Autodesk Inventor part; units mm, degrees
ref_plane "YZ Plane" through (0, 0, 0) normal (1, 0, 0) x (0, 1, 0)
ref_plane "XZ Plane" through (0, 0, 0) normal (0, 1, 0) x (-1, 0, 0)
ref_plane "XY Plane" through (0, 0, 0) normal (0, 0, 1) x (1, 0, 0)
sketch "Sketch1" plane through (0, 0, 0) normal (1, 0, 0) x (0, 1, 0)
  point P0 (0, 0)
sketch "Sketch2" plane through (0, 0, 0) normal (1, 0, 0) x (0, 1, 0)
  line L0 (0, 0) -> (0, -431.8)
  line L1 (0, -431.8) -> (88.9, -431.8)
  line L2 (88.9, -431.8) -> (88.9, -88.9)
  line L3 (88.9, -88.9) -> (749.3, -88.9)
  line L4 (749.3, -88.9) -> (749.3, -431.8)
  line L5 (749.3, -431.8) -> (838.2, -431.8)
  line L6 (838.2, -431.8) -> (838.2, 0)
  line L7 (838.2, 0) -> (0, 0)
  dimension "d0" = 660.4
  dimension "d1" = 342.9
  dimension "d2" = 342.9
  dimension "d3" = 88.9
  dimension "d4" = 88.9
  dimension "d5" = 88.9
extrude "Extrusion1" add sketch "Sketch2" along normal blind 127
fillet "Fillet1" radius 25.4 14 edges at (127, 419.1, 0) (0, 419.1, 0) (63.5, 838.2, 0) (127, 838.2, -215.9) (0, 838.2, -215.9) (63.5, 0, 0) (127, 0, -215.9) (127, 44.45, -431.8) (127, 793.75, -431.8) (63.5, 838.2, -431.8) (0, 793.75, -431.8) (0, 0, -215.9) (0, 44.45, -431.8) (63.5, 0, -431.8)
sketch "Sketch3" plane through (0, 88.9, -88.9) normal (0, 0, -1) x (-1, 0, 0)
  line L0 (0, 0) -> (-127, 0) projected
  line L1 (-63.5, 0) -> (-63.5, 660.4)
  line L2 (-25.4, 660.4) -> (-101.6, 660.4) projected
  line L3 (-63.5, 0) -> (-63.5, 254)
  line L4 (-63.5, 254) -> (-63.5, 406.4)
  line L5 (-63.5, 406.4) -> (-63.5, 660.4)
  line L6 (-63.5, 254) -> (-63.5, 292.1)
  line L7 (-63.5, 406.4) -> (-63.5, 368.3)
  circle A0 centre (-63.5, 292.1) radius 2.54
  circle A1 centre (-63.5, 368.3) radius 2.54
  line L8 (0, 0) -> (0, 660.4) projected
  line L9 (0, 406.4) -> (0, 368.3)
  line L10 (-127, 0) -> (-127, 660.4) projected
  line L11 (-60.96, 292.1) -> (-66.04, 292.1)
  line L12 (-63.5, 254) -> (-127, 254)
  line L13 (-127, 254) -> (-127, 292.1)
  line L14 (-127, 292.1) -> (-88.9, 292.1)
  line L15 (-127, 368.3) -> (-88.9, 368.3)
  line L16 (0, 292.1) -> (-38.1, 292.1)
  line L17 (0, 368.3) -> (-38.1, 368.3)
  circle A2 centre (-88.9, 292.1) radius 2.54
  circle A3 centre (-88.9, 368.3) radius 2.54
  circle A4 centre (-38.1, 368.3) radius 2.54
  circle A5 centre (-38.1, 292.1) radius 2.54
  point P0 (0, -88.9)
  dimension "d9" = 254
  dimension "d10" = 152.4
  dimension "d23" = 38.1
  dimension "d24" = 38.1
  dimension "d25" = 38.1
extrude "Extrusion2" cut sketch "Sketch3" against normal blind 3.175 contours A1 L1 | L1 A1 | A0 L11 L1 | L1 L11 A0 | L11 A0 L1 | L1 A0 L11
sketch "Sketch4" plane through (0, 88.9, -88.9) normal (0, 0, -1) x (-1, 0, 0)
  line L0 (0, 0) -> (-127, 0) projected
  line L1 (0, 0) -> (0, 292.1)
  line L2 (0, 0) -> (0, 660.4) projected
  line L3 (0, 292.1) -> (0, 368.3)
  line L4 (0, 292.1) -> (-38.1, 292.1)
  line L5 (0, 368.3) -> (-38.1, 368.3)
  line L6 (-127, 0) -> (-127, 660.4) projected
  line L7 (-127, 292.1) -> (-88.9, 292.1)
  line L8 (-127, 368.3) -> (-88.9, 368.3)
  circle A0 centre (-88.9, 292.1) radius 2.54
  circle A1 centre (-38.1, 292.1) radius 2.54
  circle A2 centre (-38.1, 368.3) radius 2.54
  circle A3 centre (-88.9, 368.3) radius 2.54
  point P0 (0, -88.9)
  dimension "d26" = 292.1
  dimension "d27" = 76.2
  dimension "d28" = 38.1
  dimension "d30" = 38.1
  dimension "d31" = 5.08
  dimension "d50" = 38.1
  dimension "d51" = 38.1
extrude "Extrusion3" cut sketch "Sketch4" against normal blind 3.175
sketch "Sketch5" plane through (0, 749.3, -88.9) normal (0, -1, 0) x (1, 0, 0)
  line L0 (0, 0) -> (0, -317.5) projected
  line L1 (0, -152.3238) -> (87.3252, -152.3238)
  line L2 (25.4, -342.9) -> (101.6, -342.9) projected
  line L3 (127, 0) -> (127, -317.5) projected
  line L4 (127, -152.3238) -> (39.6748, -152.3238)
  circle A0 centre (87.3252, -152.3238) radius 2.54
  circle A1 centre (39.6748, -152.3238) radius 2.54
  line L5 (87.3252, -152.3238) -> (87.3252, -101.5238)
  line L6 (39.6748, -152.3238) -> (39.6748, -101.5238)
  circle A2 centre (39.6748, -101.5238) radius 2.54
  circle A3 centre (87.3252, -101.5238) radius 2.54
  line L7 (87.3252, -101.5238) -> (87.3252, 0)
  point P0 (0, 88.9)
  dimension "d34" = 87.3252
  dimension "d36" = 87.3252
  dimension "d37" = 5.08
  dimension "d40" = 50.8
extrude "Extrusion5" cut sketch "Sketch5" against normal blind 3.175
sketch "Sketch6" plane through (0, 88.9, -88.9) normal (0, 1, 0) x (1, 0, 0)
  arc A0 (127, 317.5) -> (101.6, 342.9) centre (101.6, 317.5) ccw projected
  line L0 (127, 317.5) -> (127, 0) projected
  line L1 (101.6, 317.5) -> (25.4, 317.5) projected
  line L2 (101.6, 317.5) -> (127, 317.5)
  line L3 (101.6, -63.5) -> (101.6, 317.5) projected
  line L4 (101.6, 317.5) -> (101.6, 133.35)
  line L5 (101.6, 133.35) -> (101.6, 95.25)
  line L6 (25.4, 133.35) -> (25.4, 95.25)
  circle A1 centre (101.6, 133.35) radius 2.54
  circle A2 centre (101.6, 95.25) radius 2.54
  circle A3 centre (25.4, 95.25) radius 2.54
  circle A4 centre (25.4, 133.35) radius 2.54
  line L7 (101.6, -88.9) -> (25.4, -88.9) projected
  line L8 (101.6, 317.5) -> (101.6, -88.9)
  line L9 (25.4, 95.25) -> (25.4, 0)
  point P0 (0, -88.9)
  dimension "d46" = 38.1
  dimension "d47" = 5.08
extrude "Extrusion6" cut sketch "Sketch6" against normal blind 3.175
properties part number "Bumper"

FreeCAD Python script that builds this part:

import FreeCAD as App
import Part
import Sketcher
from FreeCAD import Vector
Q = App.Units.Quantity


def edges_at(feature, points):
    """Names of the edges that pass closest to the given points."""
    edges = feature.Shape.Edges
    near = lambda p: min(range(len(edges)), key=lambda i: edges[i].distToShape(Part.Vertex(*p))[0])
    return sorted({f"Edge{near(p) + 1}" for p in points})

doc = App.newDocument("Part")
body = doc.addObject("PartDesign::Body", "Body")

sketch1 = doc.addObject("Sketcher::SketchObject", "Sketch")
body.addObject(sketch1)
sketch1.AttachmentSupport = (doc.YZ_Plane, [""])
sketch1.MapMode = "FlatFace"
sketch1.addGeometry([
    Part.LineSegment(Vector(838, 0, 0), Vector(0, 0, 0)),
    Part.LineSegment(Vector(0, 0, 0), Vector(0, -432, 0)),
    Part.LineSegment(Vector(0, -432, 0), Vector(89, -432, 0)),
    Part.LineSegment(Vector(89, -432, 0), Vector(89, -89, 0)),
    Part.LineSegment(Vector(89, -89, 0), Vector(749, -89, 0)),
    Part.LineSegment(Vector(749, -89, 0), Vector(749, -432, 0)),
    Part.LineSegment(Vector(749, -432, 0), Vector(838, -432, 0)),
    Part.LineSegment(Vector(838, -432, 0), Vector(838, 0, 0)),
], False)
sketch1.addConstraint([
    Sketcher.Constraint("Coincident", 0, 2, 1, 1),
    Sketcher.Constraint("Coincident", 1, 2, 2, 1),
    Sketcher.Constraint("Coincident", 2, 2, 3, 1),
    Sketcher.Constraint("Coincident", 3, 2, 4, 1),
    Sketcher.Constraint("Coincident", 4, 2, 5, 1),
    Sketcher.Constraint("Coincident", 5, 2, 6, 1),
    Sketcher.Constraint("Coincident", 6, 2, 7, 1),
    Sketcher.Constraint("Coincident", 7, 2, 0, 1),
    Sketcher.Constraint("Horizontal", 0),
    Sketcher.Constraint("Vertical", 1),
    Sketcher.Constraint("Horizontal", 2),
    Sketcher.Constraint("Vertical", 3),
    Sketcher.Constraint("Horizontal", 4),
    Sketcher.Constraint("Vertical", 5),
    Sketcher.Constraint("Horizontal", 6),
    Sketcher.Constraint("Vertical", 7),
    Sketcher.Constraint("Coincident", 0, 2, -1, 1),
    Sketcher.Constraint("Horizontal", 2, 2, 5, 2),
    Sketcher.Constraint("Equal", 2, 6),
    Sketcher.Constraint("DistanceX", 4, 1, 4, 2, Q("26 in")),
    Sketcher.Constraint("DistanceX", 2, 1, 2, 2, Q("3.5 in")),
    Sketcher.Constraint("DistanceY", 3, 1, 3, 2, Q("13.5 in")),
    Sketcher.Constraint("DistanceY", 3, 2, -1, 1, Q("3.5 in")),
])
pad1 = doc.addObject("PartDesign::Pad", "Pad")
body.addObject(pad1)
pad1.Profile = sketch1
pad1.Length = Q("5 in")
doc.recompute()

fillet = doc.addObject("PartDesign::Fillet", "Fillet")
body.addObject(fillet)
fillet.Base = (pad1, edges_at(pad1, [
    (127, 419.1, 0),
    (0, 419.1, 0),
    (63.5, 838.2, 0),
    (127, 838.2, -215.9),
    (0, 838.2, -215.9),
    (63.5, 0, 0),
    (127, 0, -215.9),
    (127, 44.45, -431.8),
    (127, 793.75, -431.8),
    (63.5, 838.2, -431.8),
    (0, 793.75, -431.8),
    (0, 0, -215.9),
    (0, 44.45, -431.8),
    (63.5, 0, -431.8),
]))
fillet.Radius = Q("1 in")

sketch2 = doc.addObject("Sketcher::SketchObject", "Sketch001")
body.addObject(sketch2)
sketch2.AttachmentSupport = (doc.XY_Plane, [""])
sketch2.MapMode = "FlatFace"
sketch2.AttachmentOffset = App.Placement(Vector(0, 0, -3.5 * 25.4), App.Rotation())
sketch2.addGeometry([
    Part.Circle(Vector(63.5, 457.2, 0), Vector(0, 0, 1), 2.5),
    Part.Circle(Vector(63.5, 381, 0), Vector(0, 0, 1), 2.5),
], False)
sketch2.addConstraint([
    Sketcher.Constraint("Equal", 0, 1),
    Sketcher.Constraint("Vertical", 0, 3, 1, 3),
    Sketcher.Constraint("Diameter", 0, Q("0.2 in")),
    Sketcher.Constraint("DistanceY", -1, 1, 0, 3, Q("18 in")),
    Sketcher.Constraint("DistanceY", -1, 1, 1, 3, Q("15 in")),
    Sketcher.Constraint("DistanceX", -1, 1, 0, 3, Q("2.5 in")),
])
pocket1 = doc.addObject("PartDesign::Pocket", "Pocket")
body.addObject(pocket1)
pocket1.Profile = sketch2
pocket1.Length = Q("0.125 in")
pocket1.Reversed = True

sketch3 = doc.addObject("Sketcher::SketchObject", "Sketch002")
body.addObject(sketch3)
sketch3.AttachmentSupport = (doc.XY_Plane, [""])
sketch3.MapMode = "FlatFace"
sketch3.AttachmentOffset = App.Placement(Vector(0, 0, -3.5 * 25.4), App.Rotation())
sketch3.addGeometry([
    Part.Circle(Vector(88.9, 457.2, 0), Vector(0, 0, 1), 2.5),
    Part.Circle(Vector(88.9, 381, 0), Vector(0, 0, 1), 2.5),
    Part.Circle(Vector(38.1, 381, 0), Vector(0, 0, 1), 2.5),
    Part.Circle(Vector(38.1, 457.2, 0), Vector(0, 0, 1), 2.5),
], False)
sketch3.addConstraint([
    Sketcher.Constraint("Equal", 0, 1),
    Sketcher.Constraint("Equal", 1, 2),
    Sketcher.Constraint("Equal", 2, 3),
    Sketcher.Constraint("Horizontal", 1, 3, 2, 3),
    Sketcher.Constraint("Horizontal", 0, 3, 3, 3),
    Sketcher.Constraint("Vertical", 0, 3, 1, 3),
    Sketcher.Constraint("Vertical", 2, 3, 3, 3),
    Sketcher.Constraint("Diameter", 0, Q("0.2 in")),
    Sketcher.Constraint("DistanceY", 1, 3, 0, 3, Q("3 in")),
    Sketcher.Constraint("DistanceX", -1, 1, 2, 3, Q("1.5 in")),
    Sketcher.Constraint("DistanceY", -1, 1, 0, 3, Q("18 in")),
    Sketcher.Constraint("DistanceX", 2, 3, 1, 3, Q("2 in")),
])
pocket2 = doc.addObject("PartDesign::Pocket", "Pocket001")
body.addObject(pocket2)
pocket2.Profile = sketch3
pocket2.Length = Q("0.125 in")
pocket2.Reversed = True

sketch4 = doc.addObject("Sketcher::SketchObject", "Sketch003")
body.addObject(sketch4)
sketch4.AttachmentSupport = (doc.XZ_Plane, [""])
sketch4.MapMode = "FlatFace"
sketch4.AttachmentOffset = App.Placement(Vector(0, 0, -29.5 * 25.4), App.Rotation())
sketch4.addGeometry([
    Part.Circle(Vector(39.7, -241.2, 0), Vector(0, 0, 1), 2.5),
    Part.Circle(Vector(87.3, -190.4, 0), Vector(0, 0, 1), 2.5),
    Part.Circle(Vector(87.3, -241.2, 0), Vector(0, 0, 1), 2.5),
    Part.Circle(Vector(39.7, -190.4, 0), Vector(0, 0, 1), 2.5),
], False)
sketch4.addConstraint([
    Sketcher.Constraint("Equal", 0, 1),
    Sketcher.Constraint("Equal", 1, 2),
    Sketcher.Constraint("Equal", 2, 3),
    Sketcher.Constraint("Horizontal", 0, 3, 2, 3),
    Sketcher.Constraint("Horizontal", 1, 3, 3, 3),
    Sketcher.Constraint("Vertical", 1, 3, 2, 3),
    Sketcher.Constraint("Vertical", 0, 3, 3, 3),
    Sketcher.Constraint("Diameter", 0, Q("0.2 in")),
    Sketcher.Constraint("DistanceY", 0, 3, 1, 3, Q("2 in")),
    Sketcher.Constraint("DistanceX", -1, 1, 1, 3, Q("3.438 in")),
    Sketcher.Constraint("DistanceX", -1, 1, 0, 3, Q("1.562 in")),
    Sketcher.Constraint("DistanceY", 0, 3, -1, 1, Q("9.497 in")),
])
pocket3 = doc.addObject("PartDesign::Pocket", "Pocket002")
body.addObject(pocket3)
pocket3.Profile = sketch4
pocket3.Length = Q("0.125 in")

sketch5 = doc.addObject("Sketcher::SketchObject", "Sketch004")
body.addObject(sketch5)
sketch5.AttachmentSupport = (doc.XZ_Plane, [""])
sketch5.MapMode = "FlatFace"
sketch5.AttachmentOffset = App.Placement(Vector(0, 0, -3.5 * 25.4), App.Rotation())
sketch5.addGeometry([
    Part.Circle(Vector(101.6, -184.2, 0), Vector(0, 0, 1), 2.5),
    Part.Circle(Vector(101.6, -222.2, 0), Vector(0, 0, 1), 2.5),
    Part.Circle(Vector(25.4, -184.2, 0), Vector(0, 0, 1), 2.5),
    Part.Circle(Vector(25.4, -222.2, 0), Vector(0, 0, 1), 2.5),
], False)
sketch5.addConstraint([
    Sketcher.Constraint("Equal", 0, 1),
    Sketcher.Constraint("Equal", 1, 2),
    Sketcher.Constraint("Equal", 2, 3),
    Sketcher.Constraint("Horizontal", 0, 3, 2, 3),
    Sketcher.Constraint("Horizontal", 1, 3, 3, 3),
    Sketcher.Constraint("Vertical", 0, 3, 1, 3),
    Sketcher.Constraint("Vertical", 2, 3, 3, 3),
    Sketcher.Constraint("Diameter", 0, Q("0.2 in")),
    Sketcher.Constraint("DistanceY", 1, 3, 0, 3, Q("1.5 in")),
    Sketcher.Constraint("DistanceX", -1, 1, 0, 3, Q("4 in")),
    Sketcher.Constraint("DistanceX", -1, 1, 2, 3, Q("1 in")),
    Sketcher.Constraint("DistanceY", 0, 3, -1, 1, Q("7.25 in")),
])
pocket4 = doc.addObject("PartDesign::Pocket", "Pocket003")
body.addObject(pocket4)
pocket4.Profile = sketch5
pocket4.Length = Q("0.125 in")
pocket4.Reversed = True

doc.recompute()
